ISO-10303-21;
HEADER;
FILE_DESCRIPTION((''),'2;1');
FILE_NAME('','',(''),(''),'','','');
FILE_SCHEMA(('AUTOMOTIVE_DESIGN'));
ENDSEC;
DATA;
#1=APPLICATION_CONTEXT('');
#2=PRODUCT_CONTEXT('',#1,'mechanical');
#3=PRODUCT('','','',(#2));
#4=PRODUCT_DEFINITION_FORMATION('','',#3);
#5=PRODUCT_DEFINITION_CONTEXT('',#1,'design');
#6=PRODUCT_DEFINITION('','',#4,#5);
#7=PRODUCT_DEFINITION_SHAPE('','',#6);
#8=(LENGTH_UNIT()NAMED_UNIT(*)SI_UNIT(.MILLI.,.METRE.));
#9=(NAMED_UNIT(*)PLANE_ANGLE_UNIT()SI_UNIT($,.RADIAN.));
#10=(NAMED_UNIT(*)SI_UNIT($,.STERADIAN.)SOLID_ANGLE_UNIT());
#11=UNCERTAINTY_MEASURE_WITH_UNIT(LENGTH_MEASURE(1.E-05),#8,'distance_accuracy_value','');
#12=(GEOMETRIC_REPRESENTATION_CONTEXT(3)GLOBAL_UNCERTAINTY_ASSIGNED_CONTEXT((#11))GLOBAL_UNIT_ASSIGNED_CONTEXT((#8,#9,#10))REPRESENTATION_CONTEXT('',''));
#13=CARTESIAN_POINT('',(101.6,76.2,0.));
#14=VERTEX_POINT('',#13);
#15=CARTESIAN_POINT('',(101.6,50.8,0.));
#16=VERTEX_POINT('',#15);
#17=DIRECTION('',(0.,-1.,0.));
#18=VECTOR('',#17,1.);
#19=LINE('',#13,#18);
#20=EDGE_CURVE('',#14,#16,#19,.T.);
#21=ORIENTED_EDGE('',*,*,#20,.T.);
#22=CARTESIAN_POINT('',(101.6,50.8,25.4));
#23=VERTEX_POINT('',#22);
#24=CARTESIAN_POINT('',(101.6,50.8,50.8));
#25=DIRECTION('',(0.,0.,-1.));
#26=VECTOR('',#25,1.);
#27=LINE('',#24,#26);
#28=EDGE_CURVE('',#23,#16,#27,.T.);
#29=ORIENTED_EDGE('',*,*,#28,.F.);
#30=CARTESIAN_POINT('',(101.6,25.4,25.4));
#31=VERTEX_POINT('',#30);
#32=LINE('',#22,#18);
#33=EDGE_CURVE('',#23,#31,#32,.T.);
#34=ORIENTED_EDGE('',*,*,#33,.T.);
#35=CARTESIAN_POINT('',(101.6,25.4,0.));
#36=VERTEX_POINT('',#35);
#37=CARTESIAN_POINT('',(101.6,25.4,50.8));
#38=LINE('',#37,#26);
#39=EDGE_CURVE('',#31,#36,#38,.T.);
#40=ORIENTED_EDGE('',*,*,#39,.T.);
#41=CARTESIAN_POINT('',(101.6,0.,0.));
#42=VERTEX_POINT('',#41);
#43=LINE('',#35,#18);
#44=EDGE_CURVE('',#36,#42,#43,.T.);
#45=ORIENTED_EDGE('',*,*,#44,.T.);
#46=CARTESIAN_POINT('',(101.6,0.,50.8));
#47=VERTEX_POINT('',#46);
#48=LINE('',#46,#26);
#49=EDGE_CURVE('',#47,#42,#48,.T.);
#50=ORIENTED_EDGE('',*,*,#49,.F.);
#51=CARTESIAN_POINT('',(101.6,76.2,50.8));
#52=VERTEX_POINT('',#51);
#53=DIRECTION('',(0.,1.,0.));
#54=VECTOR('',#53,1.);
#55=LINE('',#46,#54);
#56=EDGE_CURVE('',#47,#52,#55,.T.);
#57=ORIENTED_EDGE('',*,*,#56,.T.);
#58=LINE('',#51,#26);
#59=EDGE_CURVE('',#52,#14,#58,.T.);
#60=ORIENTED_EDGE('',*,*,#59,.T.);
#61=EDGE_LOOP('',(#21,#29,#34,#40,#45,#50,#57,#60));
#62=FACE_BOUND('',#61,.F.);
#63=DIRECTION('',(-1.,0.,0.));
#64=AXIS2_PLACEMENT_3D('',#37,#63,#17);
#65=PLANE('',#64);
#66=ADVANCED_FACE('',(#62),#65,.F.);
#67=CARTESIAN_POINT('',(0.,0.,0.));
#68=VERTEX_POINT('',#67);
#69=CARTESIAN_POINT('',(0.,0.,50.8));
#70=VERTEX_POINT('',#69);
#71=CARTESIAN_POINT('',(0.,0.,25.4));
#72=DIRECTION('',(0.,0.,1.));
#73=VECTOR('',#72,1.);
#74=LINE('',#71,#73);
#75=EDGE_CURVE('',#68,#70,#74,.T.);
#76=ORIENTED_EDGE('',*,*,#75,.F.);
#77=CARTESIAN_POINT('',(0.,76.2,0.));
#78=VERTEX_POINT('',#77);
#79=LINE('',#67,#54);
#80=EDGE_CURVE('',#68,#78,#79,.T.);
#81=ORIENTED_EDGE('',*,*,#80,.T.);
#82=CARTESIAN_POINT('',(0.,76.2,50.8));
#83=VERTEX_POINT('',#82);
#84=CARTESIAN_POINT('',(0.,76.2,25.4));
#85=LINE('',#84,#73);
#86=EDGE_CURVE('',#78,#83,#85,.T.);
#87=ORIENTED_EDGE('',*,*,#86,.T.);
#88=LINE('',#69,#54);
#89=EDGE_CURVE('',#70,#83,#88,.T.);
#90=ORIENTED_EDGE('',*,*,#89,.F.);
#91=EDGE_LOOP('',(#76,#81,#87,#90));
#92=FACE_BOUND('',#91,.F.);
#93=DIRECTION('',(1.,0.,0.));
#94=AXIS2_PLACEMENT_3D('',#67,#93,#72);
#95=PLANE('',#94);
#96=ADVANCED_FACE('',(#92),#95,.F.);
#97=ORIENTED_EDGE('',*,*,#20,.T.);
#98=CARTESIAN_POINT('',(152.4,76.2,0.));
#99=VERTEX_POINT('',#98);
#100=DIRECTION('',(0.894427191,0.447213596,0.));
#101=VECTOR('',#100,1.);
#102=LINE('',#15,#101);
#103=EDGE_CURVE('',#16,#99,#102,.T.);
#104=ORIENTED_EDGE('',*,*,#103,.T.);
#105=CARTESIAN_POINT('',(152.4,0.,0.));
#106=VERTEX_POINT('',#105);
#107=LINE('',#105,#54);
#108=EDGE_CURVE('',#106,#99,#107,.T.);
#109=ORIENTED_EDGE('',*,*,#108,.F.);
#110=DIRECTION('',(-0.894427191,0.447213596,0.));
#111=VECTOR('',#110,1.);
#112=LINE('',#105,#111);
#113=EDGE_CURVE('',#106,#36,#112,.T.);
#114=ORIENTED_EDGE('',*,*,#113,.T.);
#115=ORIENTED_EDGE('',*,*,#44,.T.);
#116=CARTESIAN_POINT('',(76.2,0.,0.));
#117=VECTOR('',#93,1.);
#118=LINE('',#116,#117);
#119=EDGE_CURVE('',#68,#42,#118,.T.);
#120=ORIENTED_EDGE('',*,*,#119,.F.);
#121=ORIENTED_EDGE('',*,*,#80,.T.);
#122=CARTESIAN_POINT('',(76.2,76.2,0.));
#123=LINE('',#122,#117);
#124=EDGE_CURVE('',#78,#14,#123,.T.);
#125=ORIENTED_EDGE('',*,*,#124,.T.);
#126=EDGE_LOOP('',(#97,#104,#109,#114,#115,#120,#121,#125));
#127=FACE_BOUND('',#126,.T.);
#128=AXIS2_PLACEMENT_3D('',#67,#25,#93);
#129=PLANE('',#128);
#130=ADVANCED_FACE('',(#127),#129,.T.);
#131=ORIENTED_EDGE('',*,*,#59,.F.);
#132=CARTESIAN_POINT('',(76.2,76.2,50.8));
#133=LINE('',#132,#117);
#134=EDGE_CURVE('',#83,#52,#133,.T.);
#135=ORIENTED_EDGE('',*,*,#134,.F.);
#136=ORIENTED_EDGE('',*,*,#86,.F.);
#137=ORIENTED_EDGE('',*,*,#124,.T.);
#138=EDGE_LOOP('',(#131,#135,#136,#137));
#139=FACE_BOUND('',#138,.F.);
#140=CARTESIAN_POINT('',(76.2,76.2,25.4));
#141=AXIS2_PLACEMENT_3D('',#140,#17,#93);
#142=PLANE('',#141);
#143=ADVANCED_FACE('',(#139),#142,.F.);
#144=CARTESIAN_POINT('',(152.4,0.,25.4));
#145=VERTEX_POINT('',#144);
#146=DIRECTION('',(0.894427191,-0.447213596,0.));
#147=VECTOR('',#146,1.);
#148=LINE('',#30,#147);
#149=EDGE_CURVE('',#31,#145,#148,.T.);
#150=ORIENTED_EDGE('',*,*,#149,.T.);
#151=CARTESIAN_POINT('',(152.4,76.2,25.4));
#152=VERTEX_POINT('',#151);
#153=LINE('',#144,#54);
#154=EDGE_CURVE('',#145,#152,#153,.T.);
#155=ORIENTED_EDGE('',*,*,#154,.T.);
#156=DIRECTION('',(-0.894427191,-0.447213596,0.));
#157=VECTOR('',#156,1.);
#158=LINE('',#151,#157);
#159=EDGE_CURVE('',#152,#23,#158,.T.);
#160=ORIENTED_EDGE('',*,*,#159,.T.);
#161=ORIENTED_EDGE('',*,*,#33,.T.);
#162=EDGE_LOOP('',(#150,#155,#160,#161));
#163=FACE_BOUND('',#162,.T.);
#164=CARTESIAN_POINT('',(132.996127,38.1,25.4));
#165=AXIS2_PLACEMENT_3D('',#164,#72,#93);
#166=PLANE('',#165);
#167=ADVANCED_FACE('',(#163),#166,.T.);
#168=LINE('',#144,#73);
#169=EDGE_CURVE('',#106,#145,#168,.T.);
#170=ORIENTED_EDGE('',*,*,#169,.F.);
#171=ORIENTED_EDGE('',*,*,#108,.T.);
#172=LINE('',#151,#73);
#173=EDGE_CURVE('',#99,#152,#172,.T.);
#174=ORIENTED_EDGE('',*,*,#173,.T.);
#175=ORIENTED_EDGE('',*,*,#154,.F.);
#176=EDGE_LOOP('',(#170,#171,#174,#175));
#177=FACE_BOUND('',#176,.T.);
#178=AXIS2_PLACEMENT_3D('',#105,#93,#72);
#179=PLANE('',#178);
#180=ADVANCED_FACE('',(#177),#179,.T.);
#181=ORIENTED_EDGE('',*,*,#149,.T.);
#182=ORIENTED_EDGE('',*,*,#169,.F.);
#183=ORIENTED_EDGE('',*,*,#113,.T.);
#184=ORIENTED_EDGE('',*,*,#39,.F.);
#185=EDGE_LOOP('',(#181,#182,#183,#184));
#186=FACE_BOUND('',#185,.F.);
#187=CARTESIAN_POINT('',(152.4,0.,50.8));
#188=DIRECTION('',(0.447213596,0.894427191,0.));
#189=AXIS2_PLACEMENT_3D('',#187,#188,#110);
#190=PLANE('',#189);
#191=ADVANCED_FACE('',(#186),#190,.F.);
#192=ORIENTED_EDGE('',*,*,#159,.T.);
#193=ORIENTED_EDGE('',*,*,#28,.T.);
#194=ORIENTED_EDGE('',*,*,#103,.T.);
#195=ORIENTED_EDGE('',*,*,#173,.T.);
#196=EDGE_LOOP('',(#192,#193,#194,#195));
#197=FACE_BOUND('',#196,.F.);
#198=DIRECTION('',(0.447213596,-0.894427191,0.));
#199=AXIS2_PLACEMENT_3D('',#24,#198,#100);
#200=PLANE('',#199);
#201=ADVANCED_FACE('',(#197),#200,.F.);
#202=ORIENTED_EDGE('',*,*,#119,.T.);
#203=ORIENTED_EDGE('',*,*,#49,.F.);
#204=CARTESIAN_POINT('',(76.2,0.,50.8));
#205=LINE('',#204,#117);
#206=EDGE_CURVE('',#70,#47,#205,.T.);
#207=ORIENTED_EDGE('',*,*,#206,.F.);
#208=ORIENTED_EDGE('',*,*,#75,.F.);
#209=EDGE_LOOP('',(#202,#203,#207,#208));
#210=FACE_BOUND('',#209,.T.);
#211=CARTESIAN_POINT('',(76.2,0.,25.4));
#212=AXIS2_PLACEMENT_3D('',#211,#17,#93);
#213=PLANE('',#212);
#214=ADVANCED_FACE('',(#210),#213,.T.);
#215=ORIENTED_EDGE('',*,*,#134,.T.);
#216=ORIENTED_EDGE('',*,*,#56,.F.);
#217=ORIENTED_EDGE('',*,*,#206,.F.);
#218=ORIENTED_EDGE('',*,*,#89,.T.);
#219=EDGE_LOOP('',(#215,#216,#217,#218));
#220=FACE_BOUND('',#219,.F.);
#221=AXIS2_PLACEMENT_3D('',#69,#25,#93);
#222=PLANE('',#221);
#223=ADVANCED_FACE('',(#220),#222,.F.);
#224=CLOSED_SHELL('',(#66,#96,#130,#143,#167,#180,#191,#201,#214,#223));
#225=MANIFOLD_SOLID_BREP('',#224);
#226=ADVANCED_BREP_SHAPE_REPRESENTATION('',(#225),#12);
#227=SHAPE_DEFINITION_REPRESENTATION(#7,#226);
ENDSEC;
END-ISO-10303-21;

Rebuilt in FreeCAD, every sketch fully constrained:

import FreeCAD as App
import Part
import Sketcher

V = App.Vector
Q = App.Units.Quantity

doc = App.newDocument("Part")
body = doc.addObject("PartDesign::Body", "Body")

# Sketch on XZ plane
sketch1 = body.newObject("Sketcher::SketchObject", "Sketch")
sketch1.AttachmentSupport = (doc.getObject("XZ_Plane"), [""])
sketch1.MapMode = "FlatFace"
sketch1.addGeometry(Part.LineSegment(V(0, 51, 0), V(0, 0, 0)), False)
sketch1.addGeometry(Part.LineSegment(V(0, 0, 0), V(152, 0, 0)), False)
sketch1.addGeometry(Part.LineSegment(V(152, 0, 0), V(152, 51, 0)), False)
sketch1.addGeometry(Part.LineSegment(V(152, 51, 0), V(0, 51, 0)), False)
sketch1.addConstraint(Sketcher.Constraint("Coincident", 0, 2, 1, 1))
sketch1.addConstraint(Sketcher.Constraint("Coincident", 1, 2, 2, 1))
sketch1.addConstraint(Sketcher.Constraint("Coincident", 2, 2, 3, 1))
sketch1.addConstraint(Sketcher.Constraint("Coincident", 3, 2, 0, 1))
sketch1.addConstraint(Sketcher.Constraint("Vertical", 0))
sketch1.addConstraint(Sketcher.Constraint("Horizontal", 1))
sketch1.addConstraint(Sketcher.Constraint("Vertical", 2))
sketch1.addConstraint(Sketcher.Constraint("Horizontal", 3))
sketch1.addConstraint(Sketcher.Constraint("Coincident", 0, 2, -1, 1))
sketch1.addConstraint(Sketcher.Constraint("DistanceX", 1, 1, 1, 2, Q("6 in")))
sketch1.addConstraint(Sketcher.Constraint("DistanceY", 0, 2, 0, 1, Q("2 in")))
pad1 = body.newObject("PartDesign::Pad", "Pad")
pad1.Profile = sketch1
pad1.Length = Q("3 in")
pad1.Reversed = True

# Sketch on XY plane
sketch2 = body.newObject("Sketcher::SketchObject", "Sketch001")
sketch2.AttachmentSupport = (doc.getObject("XY_Plane"), [""])
sketch2.MapMode = "FlatFace"
sketch2.AttachmentOffset = App.Placement(V(0, 0, 2 * 25.4), App.Rotation())
sketch2.addGeometry(Part.LineSegment(V(102, 25, 0), V(102, 0, 0)), False)
sketch2.addGeometry(Part.LineSegment(V(102, 0, 0), V(152, 0, 0)), False)
sketch2.addGeometry(Part.LineSegment(V(152, 0, 0), V(102, 25, 0)), False)
sketch2.addGeometry(Part.LineSegment(V(152, 76, 0), V(102, 76, 0)), False)
sketch2.addGeometry(Part.LineSegment(V(102, 76, 0), V(102, 51, 0)), False)
sketch2.addGeometry(Part.LineSegment(V(102, 51, 0), V(152, 76, 0)), False)
sketch2.addConstraint(Sketcher.Constraint("Coincident", 0, 2, 1, 1))
sketch2.addConstraint(Sketcher.Constraint("Coincident", 1, 2, 2, 1))
sketch2.addConstraint(Sketcher.Constraint("Coincident", 2, 2, 0, 1))
sketch2.addConstraint(Sketcher.Constraint("Coincident", 3, 2, 4, 1))
sketch2.addConstraint(Sketcher.Constraint("Coincident", 4, 2, 5, 1))
sketch2.addConstraint(Sketcher.Constraint("Coincident", 5, 2, 3, 1))
sketch2.addConstraint(Sketcher.Constraint("Vertical", 0))
sketch2.addConstraint(Sketcher.Constraint("Horizontal", 1))
sketch2.addConstraint(Sketcher.Constraint("Horizontal", 3))
sketch2.addConstraint(Sketcher.Constraint("Vertical", 4))
sketch2.addConstraint(Sketcher.Constraint("PointOnObject", 0, 2, -1))
sketch2.addConstraint(Sketcher.Constraint("Vertical", 2, 2, 3, 2))
sketch2.addConstraint(Sketcher.Constraint("Vertical", 1, 2, 5, 2))
sketch2.addConstraint(Sketcher.Constraint("Equal", 0, 4))
sketch2.addConstraint(Sketcher.Constraint("DistanceX", 1, 1, 1, 2, Q("2 in")))
sketch2.addConstraint(Sketcher.Constraint("DistanceY", 0, 2, 0, 1, Q("1 in")))
sketch2.addConstraint(Sketcher.Constraint("DistanceX", -1, 1, 0, 2, Q("4 in")))
sketch2.addConstraint(Sketcher.Constraint("DistanceY", -1, 1, 3, 2, Q("3 in")))
pocket1 = body.newObject("PartDesign::Pocket", "Pocket")
pocket1.Profile = sketch2
pocket1.Length = Q("2 in")

# Sketch on XY plane
sketch3 = body.newObject("Sketcher::SketchObject", "Sketch002")
sketch3.AttachmentSupport = (doc.getObject("XY_Plane"), [""])
sketch3.MapMode = "FlatFace"
sketch3.AttachmentOffset = App.Placement(V(0, 0, 2 * 25.4), App.Rotation())
sketch3.addGeometry(Part.LineSegment(V(152, 76, 0), V(102, 51, 0)), False)
sketch3.addGeometry(Part.LineSegment(V(102, 51, 0), V(102, 25, 0)), False)
sketch3.addGeometry(Part.LineSegment(V(102, 25, 0), V(152, 0, 0)), False)
sketch3.addGeometry(Part.LineSegment(V(152, 0, 0), V(152, 76, 0)), False)
sketch3.addConstraint(Sketcher.Constraint("Coincident", 0, 2, 1, 1))
sketch3.addConstraint(Sketcher.Constraint("Coincident", 1, 2, 2, 1))
sketch3.addConstraint(Sketcher.Constraint("Coincident", 2, 2, 3, 1))
sketch3.addConstraint(Sketcher.Constraint("Coincident", 3, 2, 0, 1))
sketch3.addConstraint(Sketcher.Constraint("Vertical", 1))
sketch3.addConstraint(Sketcher.Constraint("Vertical", 3))
sketch3.addConstraint(Sketcher.Constraint("PointOnObject", 2, 2, -1))
sketch3.addConstraint(Sketcher.Constraint("Equal", 0, 2))
sketch3.addConstraint(Sketcher.Constraint("DistanceY", 1, 2, 1, 1, Q("1 in")))
sketch3.addConstraint(Sketcher.Constraint("DistanceY", 3, 1, 3, 2, Q("3 in")))
sketch3.addConstraint(Sketcher.Constraint("DistanceX", -1, 1, 0, 2, Q("4 in")))
sketch3.addConstraint(Sketcher.Constraint("DistanceX", -1, 1, 2, 2, Q("6 in")))
pocket2 = body.newObject("PartDesign::Pocket", "Pocket001")
pocket2.Profile = sketch3
pocket2.Length = Q("1 in")

doc.recompute()
